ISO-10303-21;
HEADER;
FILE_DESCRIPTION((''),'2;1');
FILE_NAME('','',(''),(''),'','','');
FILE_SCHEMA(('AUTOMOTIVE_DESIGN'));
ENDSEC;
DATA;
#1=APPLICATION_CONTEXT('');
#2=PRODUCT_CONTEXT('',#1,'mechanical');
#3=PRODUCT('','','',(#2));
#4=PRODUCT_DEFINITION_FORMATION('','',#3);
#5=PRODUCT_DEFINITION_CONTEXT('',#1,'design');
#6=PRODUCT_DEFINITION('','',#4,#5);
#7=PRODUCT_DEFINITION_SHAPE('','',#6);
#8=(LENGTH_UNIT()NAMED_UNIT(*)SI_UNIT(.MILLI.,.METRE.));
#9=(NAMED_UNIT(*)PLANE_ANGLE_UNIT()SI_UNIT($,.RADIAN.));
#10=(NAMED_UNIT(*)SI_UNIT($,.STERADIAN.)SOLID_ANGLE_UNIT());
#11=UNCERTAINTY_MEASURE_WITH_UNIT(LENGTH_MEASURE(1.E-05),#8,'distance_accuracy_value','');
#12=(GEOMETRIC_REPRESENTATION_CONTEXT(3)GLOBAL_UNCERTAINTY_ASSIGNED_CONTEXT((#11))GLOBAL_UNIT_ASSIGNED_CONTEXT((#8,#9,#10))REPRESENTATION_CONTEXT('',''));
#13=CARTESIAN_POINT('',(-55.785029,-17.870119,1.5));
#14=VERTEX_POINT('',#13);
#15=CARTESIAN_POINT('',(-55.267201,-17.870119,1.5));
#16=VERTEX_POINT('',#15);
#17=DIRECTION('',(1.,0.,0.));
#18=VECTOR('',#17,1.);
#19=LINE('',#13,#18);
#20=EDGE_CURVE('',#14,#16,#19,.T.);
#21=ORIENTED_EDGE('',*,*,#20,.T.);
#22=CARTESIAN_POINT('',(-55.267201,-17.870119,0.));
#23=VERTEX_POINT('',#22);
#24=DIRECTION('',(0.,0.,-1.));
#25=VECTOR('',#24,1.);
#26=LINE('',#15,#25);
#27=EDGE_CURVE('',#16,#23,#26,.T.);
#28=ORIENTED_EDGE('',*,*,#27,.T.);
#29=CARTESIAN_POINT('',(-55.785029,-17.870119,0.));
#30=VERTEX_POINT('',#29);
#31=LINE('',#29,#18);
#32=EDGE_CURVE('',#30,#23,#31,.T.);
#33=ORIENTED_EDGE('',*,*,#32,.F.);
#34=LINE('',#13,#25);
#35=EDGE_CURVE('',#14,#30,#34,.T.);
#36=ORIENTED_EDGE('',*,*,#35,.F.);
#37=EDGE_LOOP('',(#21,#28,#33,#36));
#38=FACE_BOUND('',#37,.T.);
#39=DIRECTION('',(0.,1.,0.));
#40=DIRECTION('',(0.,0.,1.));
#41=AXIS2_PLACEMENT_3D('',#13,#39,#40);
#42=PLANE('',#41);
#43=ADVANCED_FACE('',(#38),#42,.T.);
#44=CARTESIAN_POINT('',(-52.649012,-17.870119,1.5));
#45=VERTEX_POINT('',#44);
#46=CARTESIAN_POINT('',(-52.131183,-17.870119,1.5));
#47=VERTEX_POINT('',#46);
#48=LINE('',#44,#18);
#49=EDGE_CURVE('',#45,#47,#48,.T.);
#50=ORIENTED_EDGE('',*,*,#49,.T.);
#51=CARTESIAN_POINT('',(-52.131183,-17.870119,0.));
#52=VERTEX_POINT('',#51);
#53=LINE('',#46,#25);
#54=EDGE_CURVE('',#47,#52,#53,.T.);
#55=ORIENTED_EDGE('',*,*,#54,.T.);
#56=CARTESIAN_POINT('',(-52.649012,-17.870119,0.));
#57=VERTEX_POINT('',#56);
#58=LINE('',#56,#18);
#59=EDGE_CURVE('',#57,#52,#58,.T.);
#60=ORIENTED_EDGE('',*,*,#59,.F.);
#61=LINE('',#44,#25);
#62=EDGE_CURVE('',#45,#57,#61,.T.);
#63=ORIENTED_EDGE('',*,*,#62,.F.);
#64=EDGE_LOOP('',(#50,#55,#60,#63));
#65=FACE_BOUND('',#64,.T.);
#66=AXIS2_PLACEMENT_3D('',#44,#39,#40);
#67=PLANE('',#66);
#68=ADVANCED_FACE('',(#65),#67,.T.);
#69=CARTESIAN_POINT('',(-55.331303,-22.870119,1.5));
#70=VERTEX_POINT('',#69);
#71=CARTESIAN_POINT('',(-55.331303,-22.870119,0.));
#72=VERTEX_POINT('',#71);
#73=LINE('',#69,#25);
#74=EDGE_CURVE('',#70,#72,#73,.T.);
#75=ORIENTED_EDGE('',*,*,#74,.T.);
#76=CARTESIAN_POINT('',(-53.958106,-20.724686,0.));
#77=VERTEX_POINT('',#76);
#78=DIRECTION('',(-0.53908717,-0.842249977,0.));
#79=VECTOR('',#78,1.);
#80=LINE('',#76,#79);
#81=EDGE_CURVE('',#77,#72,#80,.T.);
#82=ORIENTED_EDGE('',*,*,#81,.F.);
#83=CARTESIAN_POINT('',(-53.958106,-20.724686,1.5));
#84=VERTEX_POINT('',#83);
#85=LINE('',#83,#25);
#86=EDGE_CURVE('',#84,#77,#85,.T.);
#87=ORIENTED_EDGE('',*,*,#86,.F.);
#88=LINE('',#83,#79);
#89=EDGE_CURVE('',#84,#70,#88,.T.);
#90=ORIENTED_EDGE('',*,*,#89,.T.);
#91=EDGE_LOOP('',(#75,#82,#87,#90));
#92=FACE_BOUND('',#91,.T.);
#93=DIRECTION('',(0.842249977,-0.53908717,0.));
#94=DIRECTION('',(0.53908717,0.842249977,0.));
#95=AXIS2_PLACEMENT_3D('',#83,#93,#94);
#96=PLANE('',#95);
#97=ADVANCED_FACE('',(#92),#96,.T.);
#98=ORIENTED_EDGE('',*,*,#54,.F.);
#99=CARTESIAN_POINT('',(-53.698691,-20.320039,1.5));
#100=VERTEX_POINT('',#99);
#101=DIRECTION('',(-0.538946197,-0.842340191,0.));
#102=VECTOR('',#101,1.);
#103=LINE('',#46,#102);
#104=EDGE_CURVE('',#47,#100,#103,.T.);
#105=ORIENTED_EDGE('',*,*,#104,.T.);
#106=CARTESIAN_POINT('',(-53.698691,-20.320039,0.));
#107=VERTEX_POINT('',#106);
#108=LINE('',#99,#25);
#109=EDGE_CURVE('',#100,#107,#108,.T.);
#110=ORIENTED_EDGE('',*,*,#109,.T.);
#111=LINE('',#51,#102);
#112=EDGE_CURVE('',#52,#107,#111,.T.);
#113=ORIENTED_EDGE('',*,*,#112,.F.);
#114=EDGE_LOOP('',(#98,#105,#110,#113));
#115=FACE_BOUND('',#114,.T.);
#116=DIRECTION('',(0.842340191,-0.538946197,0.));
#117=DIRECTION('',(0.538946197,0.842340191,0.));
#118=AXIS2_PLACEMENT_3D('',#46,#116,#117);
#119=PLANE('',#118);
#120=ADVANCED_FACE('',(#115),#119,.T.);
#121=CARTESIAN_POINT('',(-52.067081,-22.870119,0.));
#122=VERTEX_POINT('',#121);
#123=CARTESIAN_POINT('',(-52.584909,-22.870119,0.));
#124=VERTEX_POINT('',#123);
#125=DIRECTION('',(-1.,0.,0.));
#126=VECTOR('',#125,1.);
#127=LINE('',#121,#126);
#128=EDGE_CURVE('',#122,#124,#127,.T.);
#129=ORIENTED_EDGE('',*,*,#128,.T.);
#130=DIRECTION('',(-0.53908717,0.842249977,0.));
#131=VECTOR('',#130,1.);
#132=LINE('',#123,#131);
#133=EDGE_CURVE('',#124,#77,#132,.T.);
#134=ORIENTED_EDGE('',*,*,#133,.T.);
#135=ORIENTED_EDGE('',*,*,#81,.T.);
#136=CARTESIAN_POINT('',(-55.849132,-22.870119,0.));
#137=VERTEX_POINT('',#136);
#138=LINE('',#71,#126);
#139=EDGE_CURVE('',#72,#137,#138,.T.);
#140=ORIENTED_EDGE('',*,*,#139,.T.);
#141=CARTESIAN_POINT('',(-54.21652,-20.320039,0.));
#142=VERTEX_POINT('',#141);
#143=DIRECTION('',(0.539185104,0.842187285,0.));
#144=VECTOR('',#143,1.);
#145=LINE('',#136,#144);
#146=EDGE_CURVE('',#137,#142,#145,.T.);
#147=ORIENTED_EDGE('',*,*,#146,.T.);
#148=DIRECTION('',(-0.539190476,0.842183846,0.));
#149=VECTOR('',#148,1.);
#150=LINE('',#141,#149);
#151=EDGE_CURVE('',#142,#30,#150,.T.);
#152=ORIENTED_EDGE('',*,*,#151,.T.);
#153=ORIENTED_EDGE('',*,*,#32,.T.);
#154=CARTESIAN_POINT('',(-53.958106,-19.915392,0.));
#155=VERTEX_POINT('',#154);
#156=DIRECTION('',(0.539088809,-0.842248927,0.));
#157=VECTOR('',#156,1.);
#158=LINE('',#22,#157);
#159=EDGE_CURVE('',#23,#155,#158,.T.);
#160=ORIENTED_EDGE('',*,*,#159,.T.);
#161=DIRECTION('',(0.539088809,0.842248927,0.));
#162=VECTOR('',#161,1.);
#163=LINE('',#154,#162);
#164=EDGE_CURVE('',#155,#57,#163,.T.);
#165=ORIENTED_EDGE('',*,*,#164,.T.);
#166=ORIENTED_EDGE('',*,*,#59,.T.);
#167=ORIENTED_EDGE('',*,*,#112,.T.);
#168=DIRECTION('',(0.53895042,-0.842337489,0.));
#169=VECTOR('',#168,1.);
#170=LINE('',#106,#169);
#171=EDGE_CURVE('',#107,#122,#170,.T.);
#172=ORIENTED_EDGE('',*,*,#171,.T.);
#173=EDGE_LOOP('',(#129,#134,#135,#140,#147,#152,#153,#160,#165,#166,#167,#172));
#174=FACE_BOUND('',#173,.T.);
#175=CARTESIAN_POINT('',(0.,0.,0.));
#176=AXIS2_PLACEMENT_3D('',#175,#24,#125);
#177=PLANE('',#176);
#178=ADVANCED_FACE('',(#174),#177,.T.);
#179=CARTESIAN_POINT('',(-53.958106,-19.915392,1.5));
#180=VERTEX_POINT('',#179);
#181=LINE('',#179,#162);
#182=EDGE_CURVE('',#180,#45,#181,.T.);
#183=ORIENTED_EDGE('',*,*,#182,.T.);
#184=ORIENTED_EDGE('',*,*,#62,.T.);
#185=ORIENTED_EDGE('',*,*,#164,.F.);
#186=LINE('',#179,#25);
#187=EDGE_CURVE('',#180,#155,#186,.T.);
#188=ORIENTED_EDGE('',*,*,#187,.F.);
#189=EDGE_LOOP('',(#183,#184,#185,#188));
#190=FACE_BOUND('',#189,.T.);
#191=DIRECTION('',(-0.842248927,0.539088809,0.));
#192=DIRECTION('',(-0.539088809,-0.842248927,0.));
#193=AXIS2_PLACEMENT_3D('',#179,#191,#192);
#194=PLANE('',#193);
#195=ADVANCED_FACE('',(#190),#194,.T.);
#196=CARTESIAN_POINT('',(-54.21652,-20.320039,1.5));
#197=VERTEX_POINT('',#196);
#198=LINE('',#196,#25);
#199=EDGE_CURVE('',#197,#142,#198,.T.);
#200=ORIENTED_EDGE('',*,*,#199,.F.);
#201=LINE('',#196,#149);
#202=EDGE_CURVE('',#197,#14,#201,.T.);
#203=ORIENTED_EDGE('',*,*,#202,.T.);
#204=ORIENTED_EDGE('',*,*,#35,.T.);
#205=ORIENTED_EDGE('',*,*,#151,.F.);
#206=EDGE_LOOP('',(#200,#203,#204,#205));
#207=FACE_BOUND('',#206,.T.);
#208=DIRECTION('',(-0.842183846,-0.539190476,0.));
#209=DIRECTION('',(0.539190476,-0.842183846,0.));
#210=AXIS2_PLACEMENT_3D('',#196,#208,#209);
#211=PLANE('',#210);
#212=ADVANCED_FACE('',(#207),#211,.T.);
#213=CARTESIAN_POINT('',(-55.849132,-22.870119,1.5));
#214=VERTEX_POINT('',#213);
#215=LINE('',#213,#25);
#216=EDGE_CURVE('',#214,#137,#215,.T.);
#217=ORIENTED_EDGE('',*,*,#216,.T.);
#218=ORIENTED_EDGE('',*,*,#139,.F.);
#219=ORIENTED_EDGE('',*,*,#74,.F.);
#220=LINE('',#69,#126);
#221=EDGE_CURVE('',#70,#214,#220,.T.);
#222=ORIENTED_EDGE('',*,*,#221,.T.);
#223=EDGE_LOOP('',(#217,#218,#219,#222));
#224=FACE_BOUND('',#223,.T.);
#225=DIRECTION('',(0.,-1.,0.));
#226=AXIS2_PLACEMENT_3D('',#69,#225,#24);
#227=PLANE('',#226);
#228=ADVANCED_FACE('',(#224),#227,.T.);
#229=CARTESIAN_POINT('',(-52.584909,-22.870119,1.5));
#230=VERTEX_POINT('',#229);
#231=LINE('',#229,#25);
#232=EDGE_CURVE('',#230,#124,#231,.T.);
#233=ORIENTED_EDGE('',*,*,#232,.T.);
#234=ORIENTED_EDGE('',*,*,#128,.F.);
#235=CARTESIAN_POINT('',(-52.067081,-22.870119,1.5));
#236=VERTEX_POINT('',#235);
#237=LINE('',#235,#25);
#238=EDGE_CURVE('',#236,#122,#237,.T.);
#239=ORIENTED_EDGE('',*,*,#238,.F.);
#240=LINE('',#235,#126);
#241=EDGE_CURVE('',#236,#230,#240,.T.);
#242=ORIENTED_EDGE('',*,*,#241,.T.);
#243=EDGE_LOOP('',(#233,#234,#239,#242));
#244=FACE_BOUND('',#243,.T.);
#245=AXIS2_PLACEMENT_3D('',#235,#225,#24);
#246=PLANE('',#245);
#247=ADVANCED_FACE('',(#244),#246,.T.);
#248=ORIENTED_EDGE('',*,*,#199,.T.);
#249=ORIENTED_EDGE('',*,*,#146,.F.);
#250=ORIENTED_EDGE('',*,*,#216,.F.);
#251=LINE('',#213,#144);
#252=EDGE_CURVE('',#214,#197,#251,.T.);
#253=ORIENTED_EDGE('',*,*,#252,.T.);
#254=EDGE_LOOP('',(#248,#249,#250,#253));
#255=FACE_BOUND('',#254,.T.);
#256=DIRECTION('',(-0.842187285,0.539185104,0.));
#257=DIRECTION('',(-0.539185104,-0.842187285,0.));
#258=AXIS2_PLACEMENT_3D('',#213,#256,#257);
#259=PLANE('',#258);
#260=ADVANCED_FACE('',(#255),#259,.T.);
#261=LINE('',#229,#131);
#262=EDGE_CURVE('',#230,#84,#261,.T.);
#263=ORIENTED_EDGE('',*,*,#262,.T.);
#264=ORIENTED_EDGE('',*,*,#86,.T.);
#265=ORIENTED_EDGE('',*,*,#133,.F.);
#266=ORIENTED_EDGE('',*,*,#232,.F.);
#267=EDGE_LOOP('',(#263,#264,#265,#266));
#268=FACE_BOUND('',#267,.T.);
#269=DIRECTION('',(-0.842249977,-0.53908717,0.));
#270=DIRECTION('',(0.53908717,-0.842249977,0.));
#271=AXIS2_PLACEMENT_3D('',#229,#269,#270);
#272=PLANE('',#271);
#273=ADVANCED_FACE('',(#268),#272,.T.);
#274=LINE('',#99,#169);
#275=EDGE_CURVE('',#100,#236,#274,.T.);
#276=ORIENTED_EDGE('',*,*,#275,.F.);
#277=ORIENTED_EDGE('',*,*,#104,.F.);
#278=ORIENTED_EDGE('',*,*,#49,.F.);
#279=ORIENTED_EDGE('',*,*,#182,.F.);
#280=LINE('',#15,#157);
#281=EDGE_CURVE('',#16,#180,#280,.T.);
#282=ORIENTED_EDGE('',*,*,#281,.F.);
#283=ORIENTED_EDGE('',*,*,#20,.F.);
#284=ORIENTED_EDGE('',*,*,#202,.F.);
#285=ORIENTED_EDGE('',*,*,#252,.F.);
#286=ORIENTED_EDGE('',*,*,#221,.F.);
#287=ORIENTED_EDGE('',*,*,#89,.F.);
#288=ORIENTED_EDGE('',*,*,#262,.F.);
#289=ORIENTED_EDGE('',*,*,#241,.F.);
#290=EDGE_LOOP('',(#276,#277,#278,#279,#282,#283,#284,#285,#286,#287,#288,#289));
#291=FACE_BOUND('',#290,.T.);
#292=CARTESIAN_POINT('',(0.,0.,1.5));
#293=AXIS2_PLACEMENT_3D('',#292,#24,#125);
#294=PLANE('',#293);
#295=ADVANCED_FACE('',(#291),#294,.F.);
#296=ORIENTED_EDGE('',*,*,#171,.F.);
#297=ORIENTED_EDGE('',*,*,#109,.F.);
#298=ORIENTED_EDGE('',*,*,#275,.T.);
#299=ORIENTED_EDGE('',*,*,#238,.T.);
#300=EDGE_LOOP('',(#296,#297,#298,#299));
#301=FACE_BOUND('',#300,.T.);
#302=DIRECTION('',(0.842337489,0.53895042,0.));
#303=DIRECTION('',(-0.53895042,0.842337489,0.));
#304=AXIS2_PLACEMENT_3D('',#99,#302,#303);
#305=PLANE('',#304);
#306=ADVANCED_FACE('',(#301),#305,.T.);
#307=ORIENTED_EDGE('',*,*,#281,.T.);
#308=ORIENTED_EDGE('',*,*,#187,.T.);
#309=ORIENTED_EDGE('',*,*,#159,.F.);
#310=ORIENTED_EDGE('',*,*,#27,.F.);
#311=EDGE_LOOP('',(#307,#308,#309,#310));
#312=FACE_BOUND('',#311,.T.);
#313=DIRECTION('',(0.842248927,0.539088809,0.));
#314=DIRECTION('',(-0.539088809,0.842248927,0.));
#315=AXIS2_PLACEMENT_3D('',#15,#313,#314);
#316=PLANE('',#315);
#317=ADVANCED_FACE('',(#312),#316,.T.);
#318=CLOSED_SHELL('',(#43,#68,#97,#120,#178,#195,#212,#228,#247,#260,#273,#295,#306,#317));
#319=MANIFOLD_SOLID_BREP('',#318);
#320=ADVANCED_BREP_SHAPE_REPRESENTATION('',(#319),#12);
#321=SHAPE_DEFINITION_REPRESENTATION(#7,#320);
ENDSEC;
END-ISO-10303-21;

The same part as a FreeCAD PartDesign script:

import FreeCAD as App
import Part
import Sketcher
from FreeCAD import Vector
Q = App.Units.Quantity

doc = App.newDocument("Part")
body = doc.addObject("PartDesign::Body", "Body")

# Sketch on XY plane
sketch1 = body.newObject("Sketcher::SketchObject", "Sketch")
sketch1.AttachmentSupport = (doc.getObject("XY_Plane"), [""])
sketch1.MapMode = "FlatFace"
sketch1.addGeometry([
    Part.LineSegment(Vector(-55.3, -17.9, 0), Vector(-55.8, -17.9, 0)),  # 0
    Part.LineSegment(Vector(-55.8, -17.9, 0), Vector(-54.2, -20.3, 0)),  # 1
    Part.LineSegment(Vector(-54.2, -20.3, 0), Vector(-55.8, -22.9, 0)),  # 2
    Part.LineSegment(Vector(-55.8, -22.9, 0), Vector(-55.3, -22.9, 0)),  # 3
    Part.LineSegment(Vector(-55.3, -22.9, 0), Vector(-54, -20.7, 0)),  # 4
    Part.LineSegment(Vector(-54, -20.7, 0), Vector(-52.6, -22.9, 0)),  # 5
    Part.LineSegment(Vector(-52.6, -22.9, 0), Vector(-52.1, -22.9, 0)),  # 6
    Part.LineSegment(Vector(-52.1, -22.9, 0), Vector(-53.7, -20.3, 0)),  # 7
    Part.LineSegment(Vector(-53.7, -20.3, 0), Vector(-52.1, -17.9, 0)),  # 8
    Part.LineSegment(Vector(-52.1, -17.9, 0), Vector(-52.6, -17.9, 0)),  # 9
    Part.LineSegment(Vector(-52.6, -17.9, 0), Vector(-54, -19.9, 0)),  # 10
    Part.LineSegment(Vector(-54, -19.9, 0), Vector(-55.3, -17.9, 0)),  # 11
], False)
sketch1.addConstraint([
    Sketcher.Constraint("Coincident", 0, 2, 1, 1),
    Sketcher.Constraint("Coincident", 1, 2, 2, 1),
    Sketcher.Constraint("Coincident", 2, 2, 3, 1),
    Sketcher.Constraint("Coincident", 3, 2, 4, 1),
    Sketcher.Constraint("Coincident", 4, 2, 5, 1),
    Sketcher.Constraint("Coincident", 5, 2, 6, 1),
    Sketcher.Constraint("Coincident", 6, 2, 7, 1),
    Sketcher.Constraint("Coincident", 7, 2, 8, 1),
    Sketcher.Constraint("Coincident", 8, 2, 9, 1),
    Sketcher.Constraint("Coincident", 9, 2, 10, 1),
    Sketcher.Constraint("Coincident", 10, 2, 11, 1),
    Sketcher.Constraint("Coincident", 11, 2, 0, 1),
    Sketcher.Constraint("Horizontal", 0),
    Sketcher.Constraint("Horizontal", 3),
    Sketcher.Constraint("Horizontal", 6),
    Sketcher.Constraint("Horizontal", 9),
    Sketcher.Constraint("Parallel", 4, 10),
    Sketcher.Constraint("Parallel", 5, 11),
    Sketcher.Constraint("Horizontal", 3, 2, 5, 2),
    Sketcher.Constraint("Horizontal", 1, 2, 7, 2),
    Sketcher.Constraint("Horizontal", 0, 2, 8, 2),
    Sketcher.Constraint("Vertical", 4, 2, 10, 2),
    Sketcher.Constraint("Equal", 0, 3),
    Sketcher.Constraint("Equal", 3, 6),
    Sketcher.Constraint("Equal", 6, 9),
    Sketcher.Constraint("Equal", 4, 5),
    Sketcher.Constraint("DistanceY", 2, 2, 0, 2, Q("5 mm")),
    Sketcher.Constraint("DistanceX", 0, 2, 0, 1, Q("0.517829 mm")),
    Sketcher.Constraint("DistanceX", 11, 2, -1, 1, Q("55.267201 mm")),
    Sketcher.Constraint("Distance", 1, Q("2.909008 mm")),
    Sketcher.Constraint("Distance", 8, Q("2.908468 mm")),
    Sketcher.Constraint("DistanceY", 0, 2, -1, 1, Q("17.870119 mm")),
    Sketcher.Constraint("DistanceX", 1, 2, -1, 1, Q("54.21652 mm")),
    Sketcher.Constraint("DistanceX", 2, 2, -1, 1, Q("55.849132 mm")),
    Sketcher.Constraint("DistanceX", 5, 2, -1, 1, Q("52.584909 mm")),
    Sketcher.Constraint("DistanceY", 10, 2, -1, 1, Q("19.915392 mm")),
])
pad1 = body.newObject("PartDesign::Pad", "Pad")
pad1.Profile = sketch1
pad1.Length = 1.5

doc.recompute()
